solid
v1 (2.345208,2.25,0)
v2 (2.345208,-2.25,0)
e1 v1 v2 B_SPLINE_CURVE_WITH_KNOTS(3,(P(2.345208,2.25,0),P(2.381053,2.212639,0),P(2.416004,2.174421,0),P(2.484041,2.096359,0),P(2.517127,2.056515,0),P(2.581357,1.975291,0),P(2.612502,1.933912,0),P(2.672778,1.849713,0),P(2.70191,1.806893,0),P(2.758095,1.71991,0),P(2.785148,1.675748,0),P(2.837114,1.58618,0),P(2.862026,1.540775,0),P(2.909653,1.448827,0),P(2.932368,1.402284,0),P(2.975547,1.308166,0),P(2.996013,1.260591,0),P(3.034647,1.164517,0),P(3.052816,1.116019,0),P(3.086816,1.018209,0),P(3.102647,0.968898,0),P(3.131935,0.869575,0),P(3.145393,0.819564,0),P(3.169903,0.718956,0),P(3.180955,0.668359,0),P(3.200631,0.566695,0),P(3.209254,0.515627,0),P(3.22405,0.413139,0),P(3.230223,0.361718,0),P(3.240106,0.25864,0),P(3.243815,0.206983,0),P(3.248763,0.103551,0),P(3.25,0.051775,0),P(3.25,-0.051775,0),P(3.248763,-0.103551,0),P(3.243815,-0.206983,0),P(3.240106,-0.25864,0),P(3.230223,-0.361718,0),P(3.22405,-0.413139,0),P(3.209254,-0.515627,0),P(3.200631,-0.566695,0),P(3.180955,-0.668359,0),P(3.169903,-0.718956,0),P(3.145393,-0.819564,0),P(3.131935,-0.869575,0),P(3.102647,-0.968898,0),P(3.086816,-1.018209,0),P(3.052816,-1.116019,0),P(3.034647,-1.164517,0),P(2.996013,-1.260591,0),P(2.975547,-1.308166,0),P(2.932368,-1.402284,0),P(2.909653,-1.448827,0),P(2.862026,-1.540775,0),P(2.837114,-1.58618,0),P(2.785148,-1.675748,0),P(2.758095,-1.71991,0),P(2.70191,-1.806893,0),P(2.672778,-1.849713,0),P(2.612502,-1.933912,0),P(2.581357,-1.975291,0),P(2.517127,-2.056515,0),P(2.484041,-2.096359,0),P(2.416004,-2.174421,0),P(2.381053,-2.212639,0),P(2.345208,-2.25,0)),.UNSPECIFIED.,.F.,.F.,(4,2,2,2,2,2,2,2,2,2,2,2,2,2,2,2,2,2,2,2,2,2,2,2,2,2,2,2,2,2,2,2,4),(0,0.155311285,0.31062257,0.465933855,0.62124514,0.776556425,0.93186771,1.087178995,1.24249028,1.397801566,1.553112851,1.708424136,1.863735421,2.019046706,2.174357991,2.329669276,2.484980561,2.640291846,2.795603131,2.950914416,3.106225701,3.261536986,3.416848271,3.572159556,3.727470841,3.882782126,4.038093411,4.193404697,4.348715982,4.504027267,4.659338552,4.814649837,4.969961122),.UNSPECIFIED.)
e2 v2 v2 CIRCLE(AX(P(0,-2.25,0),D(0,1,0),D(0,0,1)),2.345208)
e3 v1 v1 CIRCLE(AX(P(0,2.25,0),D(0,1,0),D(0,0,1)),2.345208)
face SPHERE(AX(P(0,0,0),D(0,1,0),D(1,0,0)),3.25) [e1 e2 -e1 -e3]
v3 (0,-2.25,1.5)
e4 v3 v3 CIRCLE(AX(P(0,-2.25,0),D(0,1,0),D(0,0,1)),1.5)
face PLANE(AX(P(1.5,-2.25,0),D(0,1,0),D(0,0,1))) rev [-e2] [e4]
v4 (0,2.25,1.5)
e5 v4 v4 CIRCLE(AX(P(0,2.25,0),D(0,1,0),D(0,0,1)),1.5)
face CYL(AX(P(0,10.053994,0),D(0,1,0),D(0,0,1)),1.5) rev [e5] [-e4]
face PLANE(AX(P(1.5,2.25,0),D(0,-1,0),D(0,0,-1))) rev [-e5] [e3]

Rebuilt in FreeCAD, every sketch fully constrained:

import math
import FreeCAD as App
import Part
import Sketcher

doc = App.newDocument("Part")
params = doc.addObject("Spreadsheet::Sheet", "Params")
for row, (alias, value) in enumerate([
    ("sketch1_radius", "3.25 mm"),
    ("sketch1_height", "4.5 mm"),
    ("revolution_angle", "360 deg"),
], start=1):
    params.set(f"A{row}", alias)
    params.set(f"B{row}", "=" + value)
    params.setAlias(f"B{row}", alias)

body = doc.addObject("PartDesign::Body", "Body")

sketch1 = body.newObject("Sketcher::SketchObject", "Sketch")
sketch1.AttachmentSupport = (doc.getObject("XY_Plane"), [""])
sketch1.MapMode = "FlatFace"
sketch1.addGeometry(Part.LineSegment(App.Vector(1.5, -2.25, 0), App.Vector(2.345208, -2.25, 0)), False)
sketch1.addGeometry(Part.ArcOfCircle(Part.Circle(App.Vector(0, 0, 0), App.Vector(0, 0, 1), 3.25), math.radians(-43.813061), math.radians(43.813061)), False)
sketch1.addGeometry(Part.LineSegment(App.Vector(2.345208, 2.25, 0), App.Vector(1.5, 2.25, 0)), False)
sketch1.addGeometry(Part.LineSegment(App.Vector(1.5, 2.25, 0), App.Vector(1.5, -2.25, 0)), False)
sketch1.addConstraint(Sketcher.Constraint("Coincident", 0, 2, 1, 1))
sketch1.addConstraint(Sketcher.Constraint("Coincident", 1, 2, 2, 1))
sketch1.addConstraint(Sketcher.Constraint("Coincident", 2, 2, 3, 1))
sketch1.addConstraint(Sketcher.Constraint("Coincident", 3, 2, 0, 1))
sketch1.addConstraint(Sketcher.Constraint("Horizontal", 0))
sketch1.addConstraint(Sketcher.Constraint("Horizontal", 2))
sketch1.addConstraint(Sketcher.Constraint("Vertical", 3))
sketch1.addConstraint(Sketcher.Constraint("Coincident", 1, 3, -1, 1))
sketch1.addConstraint(Sketcher.Constraint("Vertical", 0, 2, 1, 2))
sketch1.addConstraint(Sketcher.Constraint("Radius", 1, 3.25))
sketch1.addConstraint(Sketcher.Constraint("DistanceY", 3, 2, 3, 1, 4.5))
sketch1.addConstraint(Sketcher.Constraint("DistanceX", -1, 1, 2, 2, 1.5))
sketch1.setExpression("Constraints[9]", "Params.sketch1_radius")
sketch1.setExpression("Constraints[10]", "Params.sketch1_height")
revolution = body.newObject("PartDesign::Revolution", "Revolution")
revolution.Profile = sketch1
revolution.ReferenceAxis = (sketch1, ["V_Axis"])
revolution.setExpression("Angle", "Params.revolution_angle")

doc.recompute()
